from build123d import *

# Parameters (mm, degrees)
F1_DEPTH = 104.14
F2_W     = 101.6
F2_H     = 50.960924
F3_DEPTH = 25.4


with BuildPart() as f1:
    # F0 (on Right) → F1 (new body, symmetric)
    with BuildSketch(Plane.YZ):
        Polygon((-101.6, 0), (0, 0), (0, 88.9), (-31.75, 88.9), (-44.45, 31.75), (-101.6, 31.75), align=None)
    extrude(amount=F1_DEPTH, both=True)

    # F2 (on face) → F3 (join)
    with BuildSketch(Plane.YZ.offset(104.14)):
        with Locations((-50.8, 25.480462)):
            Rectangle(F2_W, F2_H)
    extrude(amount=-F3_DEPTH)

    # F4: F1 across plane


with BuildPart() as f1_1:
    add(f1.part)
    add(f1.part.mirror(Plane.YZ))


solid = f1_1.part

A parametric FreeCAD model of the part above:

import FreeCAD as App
import Part
import Sketcher
from FreeCAD import Vector
Q = App.Units.Quantity

doc = App.newDocument("Part")
params = doc.addObject("Spreadsheet::Sheet", "Params")
for row, (alias, value) in enumerate([
    ("sketch1_width", "4 in"),
    ("sketch1_height", "3.5 in"),
    ("sketch1_width2", "1.25 in"),
    ("sketch1_width3", "2.25 in"),
    ("pad1_length", "8.2 in"),
    ("sketch2_width", "4 in"),
    ("pad2_length", "1 in"),
], start=1):
    params.set(f"A{row}", alias)
    params.set(f"B{row}", "=" + value)
    params.setAlias(f"B{row}", alias)

body = doc.addObject("PartDesign::Body", "Body")

# Sketch on YZ plane
sketch1 = body.newObject("Sketcher::SketchObject", "Sketch")
sketch1.AttachmentSupport = (doc.getObject("YZ_Plane"), [""])
sketch1.MapMode = "FlatFace"
sketch1.addGeometry([
    Part.LineSegment(Vector(-102, 0, 0), Vector(0, 0, 0)),  # 0
    Part.LineSegment(Vector(0, 0, 0), Vector(0, 89, 0)),  # 1
    Part.LineSegment(Vector(0, 89, 0), Vector(-32, 89, 0)),  # 2
    Part.LineSegment(Vector(-32, 89, 0), Vector(-44, 32, 0)),  # 3
    Part.LineSegment(Vector(-44, 32, 0), Vector(-102, 32, 0)),  # 4
    Part.LineSegment(Vector(-102, 32, 0), Vector(-102, 0, 0)),  # 5
], False)
sketch1.addConstraint([
    Sketcher.Constraint("Coincident", 0, 2, 1, 1),
    Sketcher.Constraint("Coincident", 1, 2, 2, 1),
    Sketcher.Constraint("Coincident", 2, 2, 3, 1),
    Sketcher.Constraint("Coincident", 3, 2, 4, 1),
    Sketcher.Constraint("Coincident", 4, 2, 5, 1),
    Sketcher.Constraint("Coincident", 5, 2, 0, 1),
    Sketcher.Constraint("Horizontal", 0),
    Sketcher.Constraint("Vertical", 1),
    Sketcher.Constraint("Horizontal", 2),
    Sketcher.Constraint("Horizontal", 4),
    Sketcher.Constraint("Vertical", 5),
    Sketcher.Constraint("Coincident", 0, 2, -1, 1),
    Sketcher.Constraint("Equal", 2, 5),
    Sketcher.Constraint("DistanceX", 0, 1, 0, 2, Q("4 in")),
    Sketcher.Constraint("DistanceY", 1, 1, 1, 2, Q("3.5 in")),
    Sketcher.Constraint("DistanceX", 2, 2, 2, 1, Q("1.25 in")),
    Sketcher.Constraint("DistanceX", 4, 2, 4, 1, Q("2.25 in")),
])
sketch1.setExpression("Constraints[13]", "Params.sketch1_width")
sketch1.setExpression("Constraints[14]", "Params.sketch1_height")
sketch1.setExpression("Constraints[15]", "Params.sketch1_width2")
sketch1.setExpression("Constraints[16]", "Params.sketch1_width3")
pad1 = body.newObject("PartDesign::Pad", "Pad")
pad1.Profile = sketch1
pad1.setExpression("Length", "Params.pad1_length")
pad1.Midplane = True

# Sketch on YZ plane
sketch2 = body.newObject("Sketcher::SketchObject", "Sketch001")
sketch2.AttachmentSupport = (doc.getObject("YZ_Plane"), [""])
sketch2.MapMode = "FlatFace"
sketch2.AttachmentOffset = App.Placement(Vector(0, 0, 4.1 * 25.4), App.Rotation())
sketch2.addGeometry([
    Part.LineSegment(Vector(-102, 51, 0), Vector(-102, 0, 0)),
    Part.LineSegment(Vector(-102, 0, 0), Vector(0, 0, 0)),
    Part.LineSegment(Vector(0, 0, 0), Vector(0, 51, 0)),
    Part.LineSegment(Vector(0, 51, 0), Vector(-102, 51, 0)),
], False)
sketch2.addConstraint([
    Sketcher.Constraint("Coincident", 0, 2, 1, 1),
    Sketcher.Constraint("Coincident", 1, 2, 2, 1),
    Sketcher.Constraint("Coincident", 2, 2, 3, 1),
    Sketcher.Constraint("Coincident", 3, 2, 0, 1),
    Sketcher.Constraint("Vertical", 0),
    Sketcher.Constraint("Horizontal", 1),
    Sketcher.Constraint("Vertical", 2),
    Sketcher.Constraint("Horizontal", 3),
    Sketcher.Constraint("Coincident", 1, 2, -1, 1),
    Sketcher.Constraint("DistanceX", 1, 1, 1, 2, Q("4 in")),
    Sketcher.Constraint("DistanceY", 0, 2, 0, 1, 50.960924),
])
sketch2.setExpression("Constraints[9]", "Params.sketch2_width")
pad2 = body.newObject("PartDesign::Pad", "Pad001")
pad2.Profile = sketch2
pad2.setExpression("Length", "Params.pad2_length")
pad2.Reversed = True
body2 = doc.addObject("PartDesign::Body", "Body001")
doc.recompute()

body2.BaseFeature = body
doc.recompute()

mirroring = doc.addObject("Part::Mirroring", "Mirroring")
mirroring.Source = body
mirroring.Base = Vector(0, 0, 0)
mirroring.Normal = Vector(1, 0, 0)
body3 = doc.addObject("PartDesign::Body", "Body002")
body3.BaseFeature = mirroring
boolean = body2.newObject("PartDesign::Boolean", "Boolean")
boolean.Type = "Fuse"
boolean.addObjects([body3])
doc.recompute()
mirroring.Visibility = False

doc.recompute()
